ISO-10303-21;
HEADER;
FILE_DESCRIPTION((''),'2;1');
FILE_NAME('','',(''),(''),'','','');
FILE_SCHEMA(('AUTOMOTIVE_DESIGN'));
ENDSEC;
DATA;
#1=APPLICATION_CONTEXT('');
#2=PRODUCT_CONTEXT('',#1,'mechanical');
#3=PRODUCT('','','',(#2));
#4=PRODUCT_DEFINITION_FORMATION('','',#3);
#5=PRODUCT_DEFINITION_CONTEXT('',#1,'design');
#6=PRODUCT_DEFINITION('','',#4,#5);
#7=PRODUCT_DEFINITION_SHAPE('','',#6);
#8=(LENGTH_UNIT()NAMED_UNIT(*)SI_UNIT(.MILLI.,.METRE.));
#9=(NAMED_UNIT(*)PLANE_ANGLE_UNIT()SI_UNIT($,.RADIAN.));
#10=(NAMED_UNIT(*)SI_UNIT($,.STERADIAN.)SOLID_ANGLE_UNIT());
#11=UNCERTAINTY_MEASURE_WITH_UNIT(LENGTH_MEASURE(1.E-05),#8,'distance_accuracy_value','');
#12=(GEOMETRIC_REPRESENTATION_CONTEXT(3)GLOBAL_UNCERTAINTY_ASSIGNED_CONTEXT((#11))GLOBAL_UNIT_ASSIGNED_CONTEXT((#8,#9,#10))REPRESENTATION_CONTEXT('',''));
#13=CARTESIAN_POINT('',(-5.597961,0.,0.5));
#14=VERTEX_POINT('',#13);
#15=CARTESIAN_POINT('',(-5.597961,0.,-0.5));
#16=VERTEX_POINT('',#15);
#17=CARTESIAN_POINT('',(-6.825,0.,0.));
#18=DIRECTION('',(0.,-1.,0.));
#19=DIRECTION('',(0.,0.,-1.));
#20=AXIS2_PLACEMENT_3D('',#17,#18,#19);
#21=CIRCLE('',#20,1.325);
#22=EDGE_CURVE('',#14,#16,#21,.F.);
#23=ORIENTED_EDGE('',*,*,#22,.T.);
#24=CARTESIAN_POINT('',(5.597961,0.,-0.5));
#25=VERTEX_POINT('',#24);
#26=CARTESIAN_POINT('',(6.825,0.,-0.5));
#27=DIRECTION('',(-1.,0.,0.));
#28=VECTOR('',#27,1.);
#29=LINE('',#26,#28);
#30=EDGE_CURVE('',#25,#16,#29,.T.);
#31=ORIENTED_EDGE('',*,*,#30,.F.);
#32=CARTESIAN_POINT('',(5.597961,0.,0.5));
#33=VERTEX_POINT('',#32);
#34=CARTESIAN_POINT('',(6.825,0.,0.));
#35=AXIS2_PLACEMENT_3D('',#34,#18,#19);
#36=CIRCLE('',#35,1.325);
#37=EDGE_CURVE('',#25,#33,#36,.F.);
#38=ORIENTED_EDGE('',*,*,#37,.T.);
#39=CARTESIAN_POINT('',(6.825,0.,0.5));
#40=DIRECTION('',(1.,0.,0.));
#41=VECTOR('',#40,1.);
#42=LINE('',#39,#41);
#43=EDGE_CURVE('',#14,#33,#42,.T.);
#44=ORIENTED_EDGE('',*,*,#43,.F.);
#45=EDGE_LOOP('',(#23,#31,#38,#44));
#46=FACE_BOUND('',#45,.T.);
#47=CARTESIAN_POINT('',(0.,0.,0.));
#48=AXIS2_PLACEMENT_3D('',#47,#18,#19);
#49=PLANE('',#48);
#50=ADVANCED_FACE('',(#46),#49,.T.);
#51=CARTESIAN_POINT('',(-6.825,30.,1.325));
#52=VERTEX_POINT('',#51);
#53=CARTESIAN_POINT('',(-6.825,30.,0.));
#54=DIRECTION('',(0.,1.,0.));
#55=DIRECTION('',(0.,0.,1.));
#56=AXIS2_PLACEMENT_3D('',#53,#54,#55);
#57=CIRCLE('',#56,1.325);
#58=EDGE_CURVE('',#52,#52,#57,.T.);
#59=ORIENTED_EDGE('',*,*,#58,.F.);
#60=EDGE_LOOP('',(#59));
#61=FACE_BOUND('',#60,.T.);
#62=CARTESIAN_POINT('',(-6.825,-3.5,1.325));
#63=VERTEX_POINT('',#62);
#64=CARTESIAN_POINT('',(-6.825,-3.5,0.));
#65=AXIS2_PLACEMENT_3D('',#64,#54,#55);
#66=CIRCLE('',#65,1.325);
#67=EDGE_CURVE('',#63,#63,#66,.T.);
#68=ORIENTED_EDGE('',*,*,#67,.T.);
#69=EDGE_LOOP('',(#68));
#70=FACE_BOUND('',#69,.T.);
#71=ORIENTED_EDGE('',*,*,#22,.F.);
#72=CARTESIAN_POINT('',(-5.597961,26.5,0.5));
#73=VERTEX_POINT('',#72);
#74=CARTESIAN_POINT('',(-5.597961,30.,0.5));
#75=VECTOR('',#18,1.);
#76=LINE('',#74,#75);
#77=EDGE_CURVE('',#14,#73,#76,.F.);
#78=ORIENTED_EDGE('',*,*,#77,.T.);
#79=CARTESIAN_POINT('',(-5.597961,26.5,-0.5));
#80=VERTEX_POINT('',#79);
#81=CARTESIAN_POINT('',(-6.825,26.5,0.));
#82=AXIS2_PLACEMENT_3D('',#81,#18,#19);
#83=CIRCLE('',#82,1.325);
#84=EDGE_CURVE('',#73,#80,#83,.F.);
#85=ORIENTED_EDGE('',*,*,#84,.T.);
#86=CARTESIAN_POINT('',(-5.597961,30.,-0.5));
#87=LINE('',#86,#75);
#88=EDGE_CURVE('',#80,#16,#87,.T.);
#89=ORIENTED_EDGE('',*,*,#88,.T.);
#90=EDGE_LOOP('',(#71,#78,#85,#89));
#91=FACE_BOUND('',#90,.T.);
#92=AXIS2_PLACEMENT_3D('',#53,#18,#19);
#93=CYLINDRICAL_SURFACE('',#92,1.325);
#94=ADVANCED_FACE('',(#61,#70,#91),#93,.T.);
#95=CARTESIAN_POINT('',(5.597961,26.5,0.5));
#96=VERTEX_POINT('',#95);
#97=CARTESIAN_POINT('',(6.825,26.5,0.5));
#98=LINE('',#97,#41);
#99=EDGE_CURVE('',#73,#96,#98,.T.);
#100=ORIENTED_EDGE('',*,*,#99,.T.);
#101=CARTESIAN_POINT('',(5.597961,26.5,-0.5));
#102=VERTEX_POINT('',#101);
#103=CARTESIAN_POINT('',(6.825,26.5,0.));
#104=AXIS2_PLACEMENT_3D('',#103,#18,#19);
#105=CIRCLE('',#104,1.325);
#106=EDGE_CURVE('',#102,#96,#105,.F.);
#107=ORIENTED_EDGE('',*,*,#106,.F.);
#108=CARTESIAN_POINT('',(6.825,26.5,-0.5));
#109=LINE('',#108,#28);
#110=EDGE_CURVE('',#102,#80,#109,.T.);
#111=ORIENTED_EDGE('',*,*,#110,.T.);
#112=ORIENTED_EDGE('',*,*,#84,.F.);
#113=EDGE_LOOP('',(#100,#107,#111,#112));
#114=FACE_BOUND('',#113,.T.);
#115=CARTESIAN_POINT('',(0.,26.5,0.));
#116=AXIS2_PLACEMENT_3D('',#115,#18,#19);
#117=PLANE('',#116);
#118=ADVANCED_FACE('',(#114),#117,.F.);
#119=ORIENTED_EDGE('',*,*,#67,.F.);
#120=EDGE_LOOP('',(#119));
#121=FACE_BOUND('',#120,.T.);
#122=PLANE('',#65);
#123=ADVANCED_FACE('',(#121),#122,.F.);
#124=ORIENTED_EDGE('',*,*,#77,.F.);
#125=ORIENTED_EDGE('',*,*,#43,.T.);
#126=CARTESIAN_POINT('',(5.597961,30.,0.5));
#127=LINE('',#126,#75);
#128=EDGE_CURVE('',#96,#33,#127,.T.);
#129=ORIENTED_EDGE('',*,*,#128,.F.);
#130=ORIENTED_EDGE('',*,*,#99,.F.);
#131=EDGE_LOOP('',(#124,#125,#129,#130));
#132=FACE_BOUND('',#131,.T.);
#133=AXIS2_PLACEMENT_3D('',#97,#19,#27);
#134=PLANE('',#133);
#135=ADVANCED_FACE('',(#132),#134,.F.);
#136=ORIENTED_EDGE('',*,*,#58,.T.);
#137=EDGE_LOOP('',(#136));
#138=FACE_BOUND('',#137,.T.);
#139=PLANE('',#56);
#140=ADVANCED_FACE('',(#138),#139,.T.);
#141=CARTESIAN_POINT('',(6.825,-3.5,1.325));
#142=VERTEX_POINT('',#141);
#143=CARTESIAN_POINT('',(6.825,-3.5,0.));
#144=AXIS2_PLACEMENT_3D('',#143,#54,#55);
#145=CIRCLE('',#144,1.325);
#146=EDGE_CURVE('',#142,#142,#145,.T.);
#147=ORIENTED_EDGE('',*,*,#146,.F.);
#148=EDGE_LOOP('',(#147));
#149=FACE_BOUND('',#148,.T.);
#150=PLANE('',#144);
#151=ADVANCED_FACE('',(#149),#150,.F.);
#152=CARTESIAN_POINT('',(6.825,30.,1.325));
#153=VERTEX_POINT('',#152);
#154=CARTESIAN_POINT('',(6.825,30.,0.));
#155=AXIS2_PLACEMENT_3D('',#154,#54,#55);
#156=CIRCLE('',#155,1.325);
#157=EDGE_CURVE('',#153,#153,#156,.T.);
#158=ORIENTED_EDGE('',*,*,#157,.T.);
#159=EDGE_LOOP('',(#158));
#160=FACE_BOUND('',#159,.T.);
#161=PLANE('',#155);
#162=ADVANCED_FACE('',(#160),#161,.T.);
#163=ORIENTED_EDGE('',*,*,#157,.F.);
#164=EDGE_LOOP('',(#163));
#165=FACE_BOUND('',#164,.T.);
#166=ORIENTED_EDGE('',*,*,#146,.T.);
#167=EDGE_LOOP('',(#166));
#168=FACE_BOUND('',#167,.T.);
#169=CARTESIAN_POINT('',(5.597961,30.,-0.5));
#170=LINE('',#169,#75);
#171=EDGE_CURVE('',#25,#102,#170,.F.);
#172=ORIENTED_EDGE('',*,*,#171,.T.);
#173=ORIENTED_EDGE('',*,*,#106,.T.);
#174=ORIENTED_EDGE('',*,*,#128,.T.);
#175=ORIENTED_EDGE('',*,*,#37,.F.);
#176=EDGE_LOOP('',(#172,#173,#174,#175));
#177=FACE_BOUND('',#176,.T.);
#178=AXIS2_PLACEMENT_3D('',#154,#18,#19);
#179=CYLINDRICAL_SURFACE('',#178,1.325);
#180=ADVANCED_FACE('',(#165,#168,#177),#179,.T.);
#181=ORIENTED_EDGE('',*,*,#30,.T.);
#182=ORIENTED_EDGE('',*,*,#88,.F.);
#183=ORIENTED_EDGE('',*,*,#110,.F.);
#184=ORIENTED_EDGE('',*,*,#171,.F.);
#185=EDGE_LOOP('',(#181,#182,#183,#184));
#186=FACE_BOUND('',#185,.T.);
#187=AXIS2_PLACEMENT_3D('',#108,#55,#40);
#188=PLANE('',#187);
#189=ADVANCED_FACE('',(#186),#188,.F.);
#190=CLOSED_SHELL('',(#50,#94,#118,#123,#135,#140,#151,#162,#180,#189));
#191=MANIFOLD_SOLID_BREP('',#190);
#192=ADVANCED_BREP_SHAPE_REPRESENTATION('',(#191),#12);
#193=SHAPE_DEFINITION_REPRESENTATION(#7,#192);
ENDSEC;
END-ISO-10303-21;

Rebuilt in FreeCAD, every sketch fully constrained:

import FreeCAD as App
import Part
import Sketcher
from FreeCAD import Vector
Q = App.Units.Quantity


def add_polygon(sketch, points):
    """Adds a closed chain of lines whose ends are joined by coincident constraints."""
    first, n = sketch.GeometryCount, len(points)
    for a, b in zip(points, points[1:] + points[:1]):
        sketch.addGeometry(Part.LineSegment(App.Vector(*a, 0), App.Vector(*b, 0)), False)
    for i in range(n):
        sketch.addConstraint(Sketcher.Constraint("Coincident", first + i, 2, first + (i + 1) % n, 1))

doc = App.newDocument("Part")
body = doc.addObject("PartDesign::Body", "Body")

# Sketch on XZ plane
sketch1 = body.newObject("Sketcher::SketchObject", "Sketch")
sketch1.AttachmentSupport = (doc.getObject("XZ_Plane"), [""])
sketch1.MapMode = "FlatFace"
add_polygon(sketch1, [(-6.825, -0.5), (-6.825, 0.5), (6.825, 0.5), (6.825, -0.5)])  # lines 0-3
sketch1.addConstraint([
    Sketcher.Constraint("Vertical", 0),
    Sketcher.Constraint("Horizontal", 1),
    Sketcher.Constraint("Vertical", 2),
    Sketcher.Constraint("Horizontal", 3),
    Sketcher.Constraint("Symmetric", 0, 2, 2, 2, -1, 1),
    Sketcher.Constraint("DistanceY", 0, 1, 0, 2, Q("1 mm")),
    Sketcher.Constraint("DistanceX", 1, 1, 1, 2, Q("13.65 mm")),
])
pad1 = body.newObject("PartDesign::Pad", "Pad")
pad1.Profile = sketch1
pad1.Length = 26.5
pad1.Reversed = True

# Sketch on XZ plane
sketch2 = body.newObject("Sketcher::SketchObject", "Sketch001")
sketch2.AttachmentSupport = (doc.getObject("XZ_Plane"), [""])
sketch2.MapMode = "FlatFace"
sketch2.AttachmentOffset = App.Placement(Vector(0, 0, -13.25), App.Rotation())
sketch2.addGeometry([
    Part.Circle(Vector(-6.825, 0, 0), Vector(0, 0, 1), 1.325),
    Part.Circle(Vector(6.825, 0, 0), Vector(0, 0, 1), 1.325),
], False)
sketch2.addConstraint([
    Sketcher.Constraint("Equal", 0, 1),
    Sketcher.Constraint("Symmetric", 0, 3, 1, 3, -1, 1),
    Sketcher.Constraint("PointOnObject", 0, 3, -1),
    Sketcher.Constraint("Diameter", 0, Q("2.65 mm")),
    Sketcher.Constraint("DistanceX", 0, 3, 1, 3, Q("13.65 mm")),
])
pad2 = body.newObject("PartDesign::Pad", "Pad001")
pad2.Profile = sketch2
pad2.Length = 33.5
pad2.Midplane = True

doc.recompute()
